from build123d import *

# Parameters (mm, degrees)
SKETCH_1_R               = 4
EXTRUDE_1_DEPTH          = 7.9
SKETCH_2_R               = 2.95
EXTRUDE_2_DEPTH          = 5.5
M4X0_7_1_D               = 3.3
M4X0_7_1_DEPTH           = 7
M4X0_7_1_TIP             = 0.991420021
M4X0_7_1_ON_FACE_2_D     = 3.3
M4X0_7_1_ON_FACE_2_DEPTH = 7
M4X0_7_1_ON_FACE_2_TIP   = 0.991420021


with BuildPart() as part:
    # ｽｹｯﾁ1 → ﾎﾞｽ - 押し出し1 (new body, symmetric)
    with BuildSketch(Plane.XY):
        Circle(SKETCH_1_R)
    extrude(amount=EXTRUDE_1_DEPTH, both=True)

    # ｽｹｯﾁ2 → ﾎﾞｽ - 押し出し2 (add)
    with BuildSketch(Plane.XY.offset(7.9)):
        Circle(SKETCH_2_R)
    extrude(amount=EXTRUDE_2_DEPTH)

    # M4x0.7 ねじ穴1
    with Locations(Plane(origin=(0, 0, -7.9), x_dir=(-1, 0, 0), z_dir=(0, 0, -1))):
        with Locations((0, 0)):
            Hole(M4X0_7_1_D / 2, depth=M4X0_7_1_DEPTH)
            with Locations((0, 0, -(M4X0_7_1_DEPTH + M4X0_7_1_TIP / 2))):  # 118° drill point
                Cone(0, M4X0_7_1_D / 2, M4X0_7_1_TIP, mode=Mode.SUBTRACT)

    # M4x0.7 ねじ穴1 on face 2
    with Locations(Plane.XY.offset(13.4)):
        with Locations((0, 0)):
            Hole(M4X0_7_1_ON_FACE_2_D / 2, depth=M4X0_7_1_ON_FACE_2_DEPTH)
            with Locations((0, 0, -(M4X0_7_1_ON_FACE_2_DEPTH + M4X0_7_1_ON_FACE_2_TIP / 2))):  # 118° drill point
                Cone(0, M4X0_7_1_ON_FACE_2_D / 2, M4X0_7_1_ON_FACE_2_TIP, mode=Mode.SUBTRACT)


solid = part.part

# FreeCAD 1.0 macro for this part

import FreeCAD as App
import Part
import Sketcher
Q = App.Units.Quantity

doc = App.newDocument("Part")
body = doc.addObject("PartDesign::Body", "Body")

# Sketch on XY plane
sketch1 = doc.addObject("Sketcher::SketchObject", "Sketch")
body.addObject(sketch1)
sketch1.AttachmentSupport = (doc.XY_Plane, [""])
sketch1.MapMode = "FlatFace"
sketch1.addGeometry(Part.Circle(App.Vector(0, 0, 0), App.Vector(0, 0, 1), 4), False)
sketch1.addConstraint(Sketcher.Constraint("Coincident", 0, 3, -1, 1))
sketch1.addConstraint(Sketcher.Constraint("Diameter", 0, Q("8 mm")))
pad1 = doc.addObject("PartDesign::Pad", "Pad")
body.addObject(pad1)
pad1.Profile = sketch1
pad1.Length = 15.8
pad1.Midplane = True

# Sketch on XY plane
sketch2 = doc.addObject("Sketcher::SketchObject", "Sketch001")
body.addObject(sketch2)
sketch2.AttachmentSupport = (doc.XY_Plane, [""])
sketch2.MapMode = "FlatFace"
sketch2.AttachmentOffset = App.Placement(App.Vector(0, 0, 7.9), App.Rotation())
sketch2.addGeometry(Part.Circle(App.Vector(0, 0, 0), App.Vector(0, 0, 1), 3), False)
sketch2.addConstraint(Sketcher.Constraint("Coincident", 0, 3, -1, 1))
sketch2.addConstraint(Sketcher.Constraint("Diameter", 0, Q("5.9 mm")))
pad2 = doc.addObject("PartDesign::Pad", "Pad001")
body.addObject(pad2)
pad2.Profile = sketch2
pad2.Length = 5.5

# Sketch on XY plane
sketch3 = doc.addObject("Sketcher::SketchObject", "Sketch002")
body.addObject(sketch3)
sketch3.AttachmentSupport = (doc.XY_Plane, [""])
sketch3.MapMode = "FlatFace"
sketch3.AttachmentOffset = App.Placement(App.Vector(0, 0, -7.9), App.Rotation())
sketch3.addGeometry(Part.Circle(App.Vector(0, 0, 0), App.Vector(0, 0, 1), 1.6), False)
sketch3.addConstraint(Sketcher.Constraint("Coincident", 0, 3, -1, 1))
sketch3.addConstraint(Sketcher.Constraint("Diameter", 0, Q("3.3 mm")))
doc.recompute()
hole = doc.addObject("PartDesign::Hole", "Hole")
body.addObject(hole)
hole.Profile = sketch3
hole.ThreadType = "None"
hole.Diameter = 3.3
hole.DepthType = "Dimension"
hole.Depth = 7
hole.DrillPoint = "Angled"
hole.DrillPointAngle = 118
hole.Reversed = True

# Sketch on XY plane
sketch4 = doc.addObject("Sketcher::SketchObject", "Sketch003")
body.addObject(sketch4)
sketch4.AttachmentSupport = (doc.XY_Plane, [""])
sketch4.MapMode = "FlatFace"
sketch4.AttachmentOffset = App.Placement(App.Vector(0, 0, 13.4), App.Rotation())
sketch4.addGeometry(Part.Circle(App.Vector(0, 0, 0), App.Vector(0, 0, 1), 1.6), False)
sketch4.addConstraint(Sketcher.Constraint("Coincident", 0, 3, -1, 1))
sketch4.addConstraint(Sketcher.Constraint("Diameter", 0, Q("3.3 mm")))
doc.recompute()
hole2 = doc.addObject("PartDesign::Hole", "Hole001")
body.addObject(hole2)
hole2.Profile = sketch4
hole2.ThreadType = "None"
hole2.Diameter = 3.3
hole2.DepthType = "Dimension"
hole2.Depth = 7
hole2.DrillPoint = "Angled"
hole2.DrillPointAngle = 118

doc.recompute()
